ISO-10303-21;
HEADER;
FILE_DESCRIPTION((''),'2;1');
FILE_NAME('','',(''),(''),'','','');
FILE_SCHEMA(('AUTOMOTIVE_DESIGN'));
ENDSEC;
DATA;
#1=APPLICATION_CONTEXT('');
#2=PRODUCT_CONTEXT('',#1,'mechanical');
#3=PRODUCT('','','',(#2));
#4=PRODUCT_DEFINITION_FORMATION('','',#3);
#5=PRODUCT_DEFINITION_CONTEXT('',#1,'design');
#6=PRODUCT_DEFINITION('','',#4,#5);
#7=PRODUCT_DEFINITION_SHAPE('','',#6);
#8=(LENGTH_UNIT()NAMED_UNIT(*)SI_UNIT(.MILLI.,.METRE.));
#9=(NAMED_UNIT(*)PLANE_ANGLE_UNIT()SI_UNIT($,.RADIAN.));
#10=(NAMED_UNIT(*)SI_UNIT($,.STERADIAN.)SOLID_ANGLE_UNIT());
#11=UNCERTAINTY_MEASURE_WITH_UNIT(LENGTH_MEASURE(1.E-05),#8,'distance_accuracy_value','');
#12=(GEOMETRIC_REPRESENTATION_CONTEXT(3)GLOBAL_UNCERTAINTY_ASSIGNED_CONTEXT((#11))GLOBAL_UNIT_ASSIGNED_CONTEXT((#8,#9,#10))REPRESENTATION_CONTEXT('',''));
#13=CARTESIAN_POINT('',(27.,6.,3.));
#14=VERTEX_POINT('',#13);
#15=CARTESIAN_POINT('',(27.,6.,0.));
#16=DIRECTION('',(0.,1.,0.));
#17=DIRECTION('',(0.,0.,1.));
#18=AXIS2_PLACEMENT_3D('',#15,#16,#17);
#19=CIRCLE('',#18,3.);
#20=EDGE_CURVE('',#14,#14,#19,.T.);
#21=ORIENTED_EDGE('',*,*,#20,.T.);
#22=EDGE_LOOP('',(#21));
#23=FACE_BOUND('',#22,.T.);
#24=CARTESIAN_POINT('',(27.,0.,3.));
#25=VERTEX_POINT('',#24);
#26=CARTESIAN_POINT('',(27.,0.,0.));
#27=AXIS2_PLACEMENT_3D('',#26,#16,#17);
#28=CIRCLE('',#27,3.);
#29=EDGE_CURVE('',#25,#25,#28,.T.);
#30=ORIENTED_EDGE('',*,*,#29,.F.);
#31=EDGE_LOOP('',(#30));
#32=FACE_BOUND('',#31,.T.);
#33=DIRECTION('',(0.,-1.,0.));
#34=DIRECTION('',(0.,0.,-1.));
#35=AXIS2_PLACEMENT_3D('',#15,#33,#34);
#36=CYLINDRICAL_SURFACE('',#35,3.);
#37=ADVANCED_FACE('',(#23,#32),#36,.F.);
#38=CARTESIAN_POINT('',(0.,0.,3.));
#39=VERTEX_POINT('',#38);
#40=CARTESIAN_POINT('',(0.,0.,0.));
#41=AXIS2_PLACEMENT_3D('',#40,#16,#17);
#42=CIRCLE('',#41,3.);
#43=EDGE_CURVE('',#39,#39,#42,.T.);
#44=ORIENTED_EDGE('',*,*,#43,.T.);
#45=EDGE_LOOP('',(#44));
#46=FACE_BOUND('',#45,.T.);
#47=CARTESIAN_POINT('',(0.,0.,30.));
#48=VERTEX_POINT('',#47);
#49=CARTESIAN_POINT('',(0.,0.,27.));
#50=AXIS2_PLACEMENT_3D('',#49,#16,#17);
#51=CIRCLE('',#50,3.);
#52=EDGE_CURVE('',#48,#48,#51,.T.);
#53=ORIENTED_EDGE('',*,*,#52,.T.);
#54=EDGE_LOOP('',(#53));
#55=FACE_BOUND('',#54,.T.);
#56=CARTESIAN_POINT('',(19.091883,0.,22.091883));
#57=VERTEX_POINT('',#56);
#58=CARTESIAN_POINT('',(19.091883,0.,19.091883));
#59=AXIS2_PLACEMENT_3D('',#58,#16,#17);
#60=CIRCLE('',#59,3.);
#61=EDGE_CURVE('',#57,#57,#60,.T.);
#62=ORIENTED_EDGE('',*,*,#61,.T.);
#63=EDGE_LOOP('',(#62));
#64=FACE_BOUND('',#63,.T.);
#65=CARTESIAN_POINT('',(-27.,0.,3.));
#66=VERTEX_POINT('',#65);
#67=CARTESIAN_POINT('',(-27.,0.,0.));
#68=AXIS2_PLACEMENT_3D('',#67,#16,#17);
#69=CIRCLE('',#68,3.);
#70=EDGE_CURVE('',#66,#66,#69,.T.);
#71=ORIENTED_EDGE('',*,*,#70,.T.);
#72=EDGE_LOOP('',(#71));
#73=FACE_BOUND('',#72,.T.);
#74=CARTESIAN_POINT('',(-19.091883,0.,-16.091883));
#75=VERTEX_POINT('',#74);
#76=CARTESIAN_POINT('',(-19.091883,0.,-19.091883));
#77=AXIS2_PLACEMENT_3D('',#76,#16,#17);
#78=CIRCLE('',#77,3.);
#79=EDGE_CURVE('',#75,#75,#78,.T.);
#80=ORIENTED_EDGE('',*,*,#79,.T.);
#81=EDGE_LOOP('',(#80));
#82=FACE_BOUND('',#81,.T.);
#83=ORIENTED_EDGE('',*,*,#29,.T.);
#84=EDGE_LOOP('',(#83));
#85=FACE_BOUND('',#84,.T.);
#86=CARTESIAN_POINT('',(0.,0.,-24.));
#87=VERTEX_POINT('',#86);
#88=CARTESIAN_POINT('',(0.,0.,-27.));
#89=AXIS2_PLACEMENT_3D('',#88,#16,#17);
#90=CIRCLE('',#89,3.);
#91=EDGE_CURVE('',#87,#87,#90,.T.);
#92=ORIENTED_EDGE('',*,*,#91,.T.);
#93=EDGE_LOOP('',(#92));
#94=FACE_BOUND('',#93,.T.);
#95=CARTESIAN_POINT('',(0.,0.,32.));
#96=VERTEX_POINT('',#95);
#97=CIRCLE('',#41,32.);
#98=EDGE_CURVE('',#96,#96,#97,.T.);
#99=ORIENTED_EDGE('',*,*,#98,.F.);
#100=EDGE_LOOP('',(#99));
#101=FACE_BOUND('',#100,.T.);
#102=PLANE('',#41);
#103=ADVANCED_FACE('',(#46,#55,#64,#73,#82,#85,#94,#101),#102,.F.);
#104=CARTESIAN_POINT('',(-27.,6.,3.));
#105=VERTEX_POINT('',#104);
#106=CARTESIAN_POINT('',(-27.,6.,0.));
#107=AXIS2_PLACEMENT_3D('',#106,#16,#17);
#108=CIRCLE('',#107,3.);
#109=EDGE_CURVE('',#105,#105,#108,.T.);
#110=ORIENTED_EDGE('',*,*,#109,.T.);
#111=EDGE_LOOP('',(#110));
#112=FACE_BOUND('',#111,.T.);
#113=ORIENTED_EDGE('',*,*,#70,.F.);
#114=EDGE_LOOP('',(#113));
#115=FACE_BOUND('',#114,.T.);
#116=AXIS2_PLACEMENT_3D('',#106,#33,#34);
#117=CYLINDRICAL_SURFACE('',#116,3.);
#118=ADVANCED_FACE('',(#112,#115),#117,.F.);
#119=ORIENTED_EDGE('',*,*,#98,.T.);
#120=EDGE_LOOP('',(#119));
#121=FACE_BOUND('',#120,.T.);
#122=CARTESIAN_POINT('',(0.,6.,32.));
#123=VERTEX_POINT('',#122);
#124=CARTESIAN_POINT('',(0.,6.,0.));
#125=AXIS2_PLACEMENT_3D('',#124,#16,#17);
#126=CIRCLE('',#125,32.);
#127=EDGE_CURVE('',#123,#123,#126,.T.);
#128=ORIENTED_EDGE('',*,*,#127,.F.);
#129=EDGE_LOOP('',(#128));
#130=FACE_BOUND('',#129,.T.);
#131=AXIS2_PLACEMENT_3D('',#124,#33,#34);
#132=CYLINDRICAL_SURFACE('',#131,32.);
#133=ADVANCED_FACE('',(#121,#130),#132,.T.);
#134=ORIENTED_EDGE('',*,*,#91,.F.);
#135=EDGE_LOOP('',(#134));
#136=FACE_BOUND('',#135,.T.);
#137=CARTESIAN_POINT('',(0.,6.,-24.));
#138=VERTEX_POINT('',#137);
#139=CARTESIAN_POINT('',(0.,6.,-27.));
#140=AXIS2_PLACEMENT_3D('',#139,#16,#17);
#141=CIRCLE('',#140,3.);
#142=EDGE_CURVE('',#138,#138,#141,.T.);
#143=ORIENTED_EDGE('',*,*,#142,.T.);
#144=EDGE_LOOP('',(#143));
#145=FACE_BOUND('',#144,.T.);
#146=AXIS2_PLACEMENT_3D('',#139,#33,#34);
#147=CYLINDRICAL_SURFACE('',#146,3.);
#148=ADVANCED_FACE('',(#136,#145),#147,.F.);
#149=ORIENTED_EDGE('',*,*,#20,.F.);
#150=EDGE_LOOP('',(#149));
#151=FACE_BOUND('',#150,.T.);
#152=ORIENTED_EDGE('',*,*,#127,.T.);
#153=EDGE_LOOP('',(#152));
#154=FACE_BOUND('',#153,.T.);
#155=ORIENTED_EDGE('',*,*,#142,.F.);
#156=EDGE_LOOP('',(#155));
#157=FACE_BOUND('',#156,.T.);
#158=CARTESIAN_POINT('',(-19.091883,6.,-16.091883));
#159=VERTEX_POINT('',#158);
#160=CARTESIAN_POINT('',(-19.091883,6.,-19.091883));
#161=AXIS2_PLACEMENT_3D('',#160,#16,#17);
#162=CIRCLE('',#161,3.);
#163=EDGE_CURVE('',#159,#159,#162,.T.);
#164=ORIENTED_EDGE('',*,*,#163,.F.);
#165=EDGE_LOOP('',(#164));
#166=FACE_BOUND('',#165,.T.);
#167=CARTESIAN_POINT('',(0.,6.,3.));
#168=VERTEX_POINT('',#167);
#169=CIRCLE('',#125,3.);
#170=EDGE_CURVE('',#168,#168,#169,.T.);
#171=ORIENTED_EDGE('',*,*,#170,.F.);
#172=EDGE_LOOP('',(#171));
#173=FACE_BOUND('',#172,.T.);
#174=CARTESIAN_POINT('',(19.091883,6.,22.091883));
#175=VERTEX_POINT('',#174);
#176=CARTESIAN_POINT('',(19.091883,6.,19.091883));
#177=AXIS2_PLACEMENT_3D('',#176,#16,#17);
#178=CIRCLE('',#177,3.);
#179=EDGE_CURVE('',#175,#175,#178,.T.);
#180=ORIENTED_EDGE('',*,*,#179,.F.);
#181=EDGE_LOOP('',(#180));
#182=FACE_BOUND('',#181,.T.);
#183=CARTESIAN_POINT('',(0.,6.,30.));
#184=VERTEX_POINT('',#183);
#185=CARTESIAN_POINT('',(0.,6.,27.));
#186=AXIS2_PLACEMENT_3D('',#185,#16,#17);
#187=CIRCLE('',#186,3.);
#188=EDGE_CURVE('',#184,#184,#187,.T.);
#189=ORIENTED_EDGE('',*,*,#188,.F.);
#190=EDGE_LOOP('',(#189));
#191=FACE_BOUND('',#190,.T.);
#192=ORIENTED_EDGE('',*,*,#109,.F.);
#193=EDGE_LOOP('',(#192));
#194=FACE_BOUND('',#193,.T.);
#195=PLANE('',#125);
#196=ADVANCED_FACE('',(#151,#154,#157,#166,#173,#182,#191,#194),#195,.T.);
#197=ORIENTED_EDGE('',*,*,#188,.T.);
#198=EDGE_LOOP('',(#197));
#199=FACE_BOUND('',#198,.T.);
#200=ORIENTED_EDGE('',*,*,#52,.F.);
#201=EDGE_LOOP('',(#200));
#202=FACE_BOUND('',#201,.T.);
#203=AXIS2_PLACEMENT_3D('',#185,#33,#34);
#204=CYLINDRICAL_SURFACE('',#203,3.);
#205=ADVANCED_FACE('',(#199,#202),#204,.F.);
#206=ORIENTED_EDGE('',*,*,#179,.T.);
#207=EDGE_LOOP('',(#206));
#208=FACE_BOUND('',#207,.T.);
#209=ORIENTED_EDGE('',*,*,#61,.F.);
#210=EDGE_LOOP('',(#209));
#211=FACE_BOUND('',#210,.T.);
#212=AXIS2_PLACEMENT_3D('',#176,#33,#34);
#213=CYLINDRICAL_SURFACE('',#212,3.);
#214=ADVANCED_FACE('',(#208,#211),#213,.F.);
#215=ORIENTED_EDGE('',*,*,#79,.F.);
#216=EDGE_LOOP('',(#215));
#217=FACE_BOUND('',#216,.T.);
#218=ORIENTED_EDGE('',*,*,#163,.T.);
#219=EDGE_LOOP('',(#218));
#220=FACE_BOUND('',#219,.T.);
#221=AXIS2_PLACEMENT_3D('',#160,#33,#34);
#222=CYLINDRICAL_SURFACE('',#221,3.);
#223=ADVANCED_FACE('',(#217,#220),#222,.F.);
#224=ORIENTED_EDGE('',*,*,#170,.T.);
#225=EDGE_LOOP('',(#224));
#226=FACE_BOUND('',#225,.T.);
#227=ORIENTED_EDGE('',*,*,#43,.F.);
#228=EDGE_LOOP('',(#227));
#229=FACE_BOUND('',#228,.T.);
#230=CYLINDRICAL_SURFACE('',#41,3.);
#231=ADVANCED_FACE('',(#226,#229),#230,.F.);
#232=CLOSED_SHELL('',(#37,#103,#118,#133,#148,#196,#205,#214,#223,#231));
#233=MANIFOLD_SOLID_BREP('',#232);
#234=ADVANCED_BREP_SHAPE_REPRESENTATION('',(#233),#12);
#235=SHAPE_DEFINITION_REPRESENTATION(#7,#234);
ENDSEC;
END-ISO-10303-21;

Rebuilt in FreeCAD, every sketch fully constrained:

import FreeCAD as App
import Part
import Sketcher

V = App.Vector

doc = App.newDocument("Part")
body = doc.addObject("PartDesign::Body", "Body")

# Sketch on XZ plane
sketch1 = body.newObject("Sketcher::SketchObject", "Sketch")
sketch1.AttachmentSupport = (doc.getObject("XZ_Plane"), [""])
sketch1.MapMode = "FlatFace"
sketch1.addGeometry([
    Part.Circle(V(0, 0, 0), V(0, 0, 1), 32),  # 0
    Part.Circle(V(-19.1, -19.1, 0), V(0, 0, 1), 3),  # 1
    Part.Circle(V(0, -27, 0), V(0, 0, 1), 3),  # 2
    Part.Circle(V(-27, 0, 0), V(0, 0, 1), 3),  # 3
    Part.Circle(V(27, 0, 0), V(0, 0, 1), 3),  # 4
    Part.Circle(V(0, 0, 0), V(0, 0, 1), 5),  # 5
    Part.Circle(V(0, 27, 0), V(0, 0, 1), 3),  # 6
    Part.Circle(V(19.1, 19.1, 0), V(0, 0, 1), 3),  # 7
], False)
sketch1.addConstraint([
    Sketcher.Constraint("Coincident", 0, 3, -1, 1),
    Sketcher.Constraint("Coincident", 5, 3, -1, 1),
    Sketcher.Constraint("Equal", 1, 2),
    Sketcher.Constraint("Equal", 2, 3),
    Sketcher.Constraint("Equal", 3, 4),
    Sketcher.Constraint("Equal", 4, 6),
    Sketcher.Constraint("Equal", 6, 7),
    Sketcher.Constraint("Symmetric", 3, 3, 4, 3, -1, 1),
    Sketcher.Constraint("Symmetric", 2, 3, 6, 3, -1, 1),
    Sketcher.Constraint("Symmetric", 1, 3, 7, 3, -1, 1),
    Sketcher.Constraint("PointOnObject", 2, 3, -2),
    Sketcher.Constraint("PointOnObject", 3, 3, -1),
    Sketcher.Constraint("Diameter", 0, 64.0),
    Sketcher.Constraint("Diameter", 1, 6.0),
    Sketcher.Constraint("Diameter", 5, 10.0),
    Sketcher.Constraint("DistanceY", 2, 3, -1, 1, 27.0),
    Sketcher.Constraint("DistanceX", 3, 3, -1, 1, 27.0),
    Sketcher.Constraint("DistanceX", 1, 3, -1, 1, 19.091883),
    Sketcher.Constraint("DistanceY", 1, 3, -1, 1, 19.091883),
])
pad1 = body.newObject("PartDesign::Pad", "Pad")
pad1.Profile = sketch1
pad1.Length = 6
pad1.Reversed = True

# Sketch on XZ plane
sketch2 = body.newObject("Sketcher::SketchObject", "Sketch001")
sketch2.AttachmentSupport = (doc.getObject("XZ_Plane"), [""])
sketch2.MapMode = "FlatFace"
sketch2.addGeometry([
    Part.Circle(V(0, 0, 0), V(0, 0, 1), 5),
    Part.Circle(V(0, 0, 0), V(0, 0, 1), 3),
], False)
sketch2.addConstraint([
    Sketcher.Constraint("Coincident", 0, 3, -1, 1),
    Sketcher.Constraint("Coincident", 1, 3, -1, 1),
    Sketcher.Constraint("Diameter", 0, 10.0),
    Sketcher.Constraint("Diameter", 1, 6.0),
])
pad2 = body.newObject("PartDesign::Pad", "Pad001")
pad2.Profile = sketch2
pad2.Length = 6
pad2.Reversed = True

doc.recompute()
